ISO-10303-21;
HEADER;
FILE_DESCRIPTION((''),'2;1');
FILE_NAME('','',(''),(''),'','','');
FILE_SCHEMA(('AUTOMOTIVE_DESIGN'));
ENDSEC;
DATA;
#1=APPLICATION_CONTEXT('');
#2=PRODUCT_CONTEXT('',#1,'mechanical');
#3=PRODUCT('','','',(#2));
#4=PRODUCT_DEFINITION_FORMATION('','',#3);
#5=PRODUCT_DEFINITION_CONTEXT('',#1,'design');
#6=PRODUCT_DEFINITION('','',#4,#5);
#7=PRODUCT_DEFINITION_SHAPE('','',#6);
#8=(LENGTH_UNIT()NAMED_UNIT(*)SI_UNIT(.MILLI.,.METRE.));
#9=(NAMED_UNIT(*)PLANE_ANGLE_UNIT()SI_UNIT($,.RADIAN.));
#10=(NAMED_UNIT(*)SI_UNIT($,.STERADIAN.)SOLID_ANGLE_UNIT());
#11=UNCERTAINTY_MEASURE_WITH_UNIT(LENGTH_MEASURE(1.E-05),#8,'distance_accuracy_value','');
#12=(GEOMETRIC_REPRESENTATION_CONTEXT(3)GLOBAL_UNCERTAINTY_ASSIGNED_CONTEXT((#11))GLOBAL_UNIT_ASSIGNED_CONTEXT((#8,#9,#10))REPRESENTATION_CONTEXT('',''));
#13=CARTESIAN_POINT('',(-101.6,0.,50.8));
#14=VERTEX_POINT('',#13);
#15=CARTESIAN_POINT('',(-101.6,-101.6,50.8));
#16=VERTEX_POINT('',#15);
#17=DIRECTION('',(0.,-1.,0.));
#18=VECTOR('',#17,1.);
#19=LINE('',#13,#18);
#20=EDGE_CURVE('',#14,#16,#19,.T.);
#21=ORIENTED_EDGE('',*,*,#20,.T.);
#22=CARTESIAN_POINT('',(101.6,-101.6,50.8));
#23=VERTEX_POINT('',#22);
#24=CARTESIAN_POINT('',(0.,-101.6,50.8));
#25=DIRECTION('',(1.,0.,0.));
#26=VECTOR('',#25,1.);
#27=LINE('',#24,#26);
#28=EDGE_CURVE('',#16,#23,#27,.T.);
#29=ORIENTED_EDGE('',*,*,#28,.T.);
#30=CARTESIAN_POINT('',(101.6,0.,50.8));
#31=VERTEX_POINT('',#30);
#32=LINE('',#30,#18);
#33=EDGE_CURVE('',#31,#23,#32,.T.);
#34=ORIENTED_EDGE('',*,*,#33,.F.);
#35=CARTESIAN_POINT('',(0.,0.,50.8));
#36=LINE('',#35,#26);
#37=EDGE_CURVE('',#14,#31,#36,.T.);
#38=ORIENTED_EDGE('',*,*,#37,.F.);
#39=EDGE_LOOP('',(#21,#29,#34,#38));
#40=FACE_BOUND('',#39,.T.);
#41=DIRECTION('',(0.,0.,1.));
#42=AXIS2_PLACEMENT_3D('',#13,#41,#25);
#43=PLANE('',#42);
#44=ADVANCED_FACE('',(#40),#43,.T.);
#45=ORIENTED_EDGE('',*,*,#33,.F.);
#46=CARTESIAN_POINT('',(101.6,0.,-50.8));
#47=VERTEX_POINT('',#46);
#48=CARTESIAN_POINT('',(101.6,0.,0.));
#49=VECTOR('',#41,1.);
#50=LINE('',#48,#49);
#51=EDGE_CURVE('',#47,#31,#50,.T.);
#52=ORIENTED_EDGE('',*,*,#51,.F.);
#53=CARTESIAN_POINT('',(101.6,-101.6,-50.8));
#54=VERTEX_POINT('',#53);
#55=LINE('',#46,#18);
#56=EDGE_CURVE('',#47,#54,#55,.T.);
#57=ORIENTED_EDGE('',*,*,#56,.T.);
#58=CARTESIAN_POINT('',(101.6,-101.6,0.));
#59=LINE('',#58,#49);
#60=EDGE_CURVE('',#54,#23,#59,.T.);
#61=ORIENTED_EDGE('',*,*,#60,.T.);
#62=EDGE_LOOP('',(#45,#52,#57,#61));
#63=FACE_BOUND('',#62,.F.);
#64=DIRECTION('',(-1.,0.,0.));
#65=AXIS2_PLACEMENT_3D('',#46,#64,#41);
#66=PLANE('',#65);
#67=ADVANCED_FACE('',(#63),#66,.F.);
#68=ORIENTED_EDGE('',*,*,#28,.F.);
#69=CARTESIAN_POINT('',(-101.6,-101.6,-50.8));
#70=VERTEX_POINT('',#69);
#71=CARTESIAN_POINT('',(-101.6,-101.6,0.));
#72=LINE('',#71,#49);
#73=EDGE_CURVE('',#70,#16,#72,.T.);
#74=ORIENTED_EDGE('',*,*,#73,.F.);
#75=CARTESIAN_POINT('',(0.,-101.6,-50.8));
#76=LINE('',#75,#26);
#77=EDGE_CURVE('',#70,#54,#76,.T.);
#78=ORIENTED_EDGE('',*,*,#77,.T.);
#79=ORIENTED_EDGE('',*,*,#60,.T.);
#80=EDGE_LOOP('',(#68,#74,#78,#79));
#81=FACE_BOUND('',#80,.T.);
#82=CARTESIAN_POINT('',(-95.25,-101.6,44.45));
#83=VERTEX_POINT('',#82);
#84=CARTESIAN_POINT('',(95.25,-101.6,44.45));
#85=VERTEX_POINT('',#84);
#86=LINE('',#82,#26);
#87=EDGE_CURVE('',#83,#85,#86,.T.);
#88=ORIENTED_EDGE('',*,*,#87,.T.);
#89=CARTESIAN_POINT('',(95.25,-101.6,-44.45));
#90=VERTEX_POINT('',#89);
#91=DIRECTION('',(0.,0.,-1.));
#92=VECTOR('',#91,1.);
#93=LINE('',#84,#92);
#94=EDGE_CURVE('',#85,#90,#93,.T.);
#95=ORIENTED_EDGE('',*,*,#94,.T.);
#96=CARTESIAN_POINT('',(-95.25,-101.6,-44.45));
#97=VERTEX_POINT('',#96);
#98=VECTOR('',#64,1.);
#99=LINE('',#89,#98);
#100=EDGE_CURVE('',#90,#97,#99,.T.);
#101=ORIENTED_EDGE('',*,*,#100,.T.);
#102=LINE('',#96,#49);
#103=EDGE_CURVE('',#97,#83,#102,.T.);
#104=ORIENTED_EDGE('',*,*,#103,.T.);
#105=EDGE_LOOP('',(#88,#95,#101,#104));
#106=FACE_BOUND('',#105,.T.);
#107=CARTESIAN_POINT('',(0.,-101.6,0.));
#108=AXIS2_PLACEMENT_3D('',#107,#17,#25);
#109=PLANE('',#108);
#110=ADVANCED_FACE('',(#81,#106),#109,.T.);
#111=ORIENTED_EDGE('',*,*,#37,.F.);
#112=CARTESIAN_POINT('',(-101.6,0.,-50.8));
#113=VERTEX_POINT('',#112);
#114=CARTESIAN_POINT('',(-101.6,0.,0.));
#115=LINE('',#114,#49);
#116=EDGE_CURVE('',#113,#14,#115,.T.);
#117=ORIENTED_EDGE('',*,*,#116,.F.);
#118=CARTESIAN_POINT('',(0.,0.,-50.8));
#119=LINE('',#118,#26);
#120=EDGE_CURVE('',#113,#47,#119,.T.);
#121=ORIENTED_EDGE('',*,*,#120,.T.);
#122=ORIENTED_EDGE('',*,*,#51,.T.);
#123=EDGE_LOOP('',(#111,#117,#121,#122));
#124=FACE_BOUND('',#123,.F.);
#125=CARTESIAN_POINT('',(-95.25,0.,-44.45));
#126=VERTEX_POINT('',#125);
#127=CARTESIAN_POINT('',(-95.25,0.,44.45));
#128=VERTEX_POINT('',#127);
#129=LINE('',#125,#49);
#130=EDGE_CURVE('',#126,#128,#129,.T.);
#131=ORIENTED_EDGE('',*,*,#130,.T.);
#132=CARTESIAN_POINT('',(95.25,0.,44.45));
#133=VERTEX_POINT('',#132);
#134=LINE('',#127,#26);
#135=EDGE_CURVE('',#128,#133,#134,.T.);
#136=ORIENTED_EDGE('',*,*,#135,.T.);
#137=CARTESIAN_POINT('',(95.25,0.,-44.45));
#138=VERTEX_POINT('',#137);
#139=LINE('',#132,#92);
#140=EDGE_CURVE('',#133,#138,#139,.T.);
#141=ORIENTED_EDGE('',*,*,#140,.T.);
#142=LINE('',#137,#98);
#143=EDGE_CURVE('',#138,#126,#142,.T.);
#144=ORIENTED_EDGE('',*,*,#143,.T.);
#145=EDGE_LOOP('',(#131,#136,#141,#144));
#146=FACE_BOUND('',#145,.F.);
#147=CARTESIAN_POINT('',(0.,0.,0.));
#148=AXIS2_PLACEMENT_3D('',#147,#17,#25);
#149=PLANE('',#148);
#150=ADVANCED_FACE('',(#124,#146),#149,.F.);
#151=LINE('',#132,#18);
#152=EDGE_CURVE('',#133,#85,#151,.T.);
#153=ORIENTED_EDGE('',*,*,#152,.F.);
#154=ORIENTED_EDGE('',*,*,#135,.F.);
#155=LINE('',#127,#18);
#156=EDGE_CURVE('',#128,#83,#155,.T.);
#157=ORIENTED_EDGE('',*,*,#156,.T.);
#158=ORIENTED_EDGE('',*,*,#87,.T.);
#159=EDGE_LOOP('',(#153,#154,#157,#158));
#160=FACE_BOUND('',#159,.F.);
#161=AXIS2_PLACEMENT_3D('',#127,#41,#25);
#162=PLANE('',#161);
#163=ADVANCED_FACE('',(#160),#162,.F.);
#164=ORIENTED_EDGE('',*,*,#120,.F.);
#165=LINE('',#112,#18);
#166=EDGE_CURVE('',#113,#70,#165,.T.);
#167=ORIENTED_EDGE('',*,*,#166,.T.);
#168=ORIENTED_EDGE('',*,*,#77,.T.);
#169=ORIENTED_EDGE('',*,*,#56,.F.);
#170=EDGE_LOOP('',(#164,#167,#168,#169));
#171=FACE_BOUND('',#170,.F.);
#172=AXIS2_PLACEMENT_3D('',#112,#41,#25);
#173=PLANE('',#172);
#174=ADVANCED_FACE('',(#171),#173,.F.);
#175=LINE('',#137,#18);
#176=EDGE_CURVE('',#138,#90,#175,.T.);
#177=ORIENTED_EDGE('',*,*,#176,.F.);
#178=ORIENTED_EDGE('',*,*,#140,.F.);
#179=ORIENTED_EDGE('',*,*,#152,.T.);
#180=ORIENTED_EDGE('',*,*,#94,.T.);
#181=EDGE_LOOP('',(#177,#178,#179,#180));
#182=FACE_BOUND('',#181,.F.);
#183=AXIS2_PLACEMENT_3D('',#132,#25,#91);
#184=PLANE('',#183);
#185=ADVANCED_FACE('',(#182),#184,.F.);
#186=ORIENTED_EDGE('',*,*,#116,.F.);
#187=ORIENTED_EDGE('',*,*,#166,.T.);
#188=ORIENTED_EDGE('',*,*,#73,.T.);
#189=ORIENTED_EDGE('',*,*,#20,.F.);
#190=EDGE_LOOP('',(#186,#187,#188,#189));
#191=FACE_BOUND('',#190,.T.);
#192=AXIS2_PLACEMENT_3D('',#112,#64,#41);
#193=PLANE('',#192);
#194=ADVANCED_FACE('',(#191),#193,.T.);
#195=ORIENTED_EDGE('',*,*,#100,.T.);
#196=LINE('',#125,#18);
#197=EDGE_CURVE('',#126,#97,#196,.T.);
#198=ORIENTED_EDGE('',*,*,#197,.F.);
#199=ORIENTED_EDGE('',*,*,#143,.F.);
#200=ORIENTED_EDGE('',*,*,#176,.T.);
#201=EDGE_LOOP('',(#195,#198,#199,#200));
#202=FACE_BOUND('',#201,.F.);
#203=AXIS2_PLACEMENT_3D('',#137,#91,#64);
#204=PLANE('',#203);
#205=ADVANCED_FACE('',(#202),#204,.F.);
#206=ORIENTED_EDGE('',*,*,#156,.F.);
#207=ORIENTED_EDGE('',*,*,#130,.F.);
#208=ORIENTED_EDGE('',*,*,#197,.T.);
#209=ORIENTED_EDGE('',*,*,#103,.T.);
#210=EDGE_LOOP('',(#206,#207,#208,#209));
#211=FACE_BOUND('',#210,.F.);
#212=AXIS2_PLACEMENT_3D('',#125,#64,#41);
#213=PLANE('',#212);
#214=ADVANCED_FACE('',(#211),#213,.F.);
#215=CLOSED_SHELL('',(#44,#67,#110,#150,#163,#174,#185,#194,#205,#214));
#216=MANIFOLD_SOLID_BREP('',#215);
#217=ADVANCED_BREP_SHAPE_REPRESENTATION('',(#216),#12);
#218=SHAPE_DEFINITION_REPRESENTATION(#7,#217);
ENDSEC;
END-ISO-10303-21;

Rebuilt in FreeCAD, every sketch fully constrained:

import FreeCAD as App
import Part
import Sketcher

V = App.Vector
Q = App.Units.Quantity

doc = App.newDocument("Part")
body = doc.addObject("PartDesign::Body", "Body")

# Sketch on XZ plane
sketch1 = doc.addObject("Sketcher::SketchObject", "Sketch")
body.addObject(sketch1)
sketch1.AttachmentSupport = (doc.XZ_Plane, [""])
sketch1.MapMode = "FlatFace"
sketch1.addGeometry([
    Part.LineSegment(V(-102, 51, 0), V(-102, -51, 0)),  # 0
    Part.LineSegment(V(-102, -51, 0), V(102, -51, 0)),  # 1
    Part.LineSegment(V(102, -51, 0), V(102, 51, 0)),  # 2
    Part.LineSegment(V(102, 51, 0), V(-102, 51, 0)),  # 3
    Part.LineSegment(V(-95, 44, 0), V(95, 44, 0)),  # 4
    Part.LineSegment(V(95, 44, 0), V(95, -44, 0)),  # 5
    Part.LineSegment(V(95, -44, 0), V(-95, -44, 0)),  # 6
    Part.LineSegment(V(-95, -44, 0), V(-95, 44, 0)),  # 7
], False)
sketch1.addConstraint([
    Sketcher.Constraint("Coincident", 0, 2, 1, 1),
    Sketcher.Constraint("Coincident", 1, 2, 2, 1),
    Sketcher.Constraint("Coincident", 2, 2, 3, 1),
    Sketcher.Constraint("Coincident", 3, 2, 0, 1),
    Sketcher.Constraint("Coincident", 4, 2, 5, 1),
    Sketcher.Constraint("Coincident", 5, 2, 6, 1),
    Sketcher.Constraint("Coincident", 6, 2, 7, 1),
    Sketcher.Constraint("Coincident", 7, 2, 4, 1),
    Sketcher.Constraint("Vertical", 0),
    Sketcher.Constraint("Horizontal", 1),
    Sketcher.Constraint("Vertical", 2),
    Sketcher.Constraint("Horizontal", 3),
    Sketcher.Constraint("Horizontal", 4),
    Sketcher.Constraint("Vertical", 5),
    Sketcher.Constraint("Horizontal", 6),
    Sketcher.Constraint("Vertical", 7),
    Sketcher.Constraint("Symmetric", 0, 2, 2, 2, -1, 1),
    Sketcher.Constraint("Symmetric", 4, 2, 6, 2, -1, 1),
    Sketcher.Constraint("DistanceX", 1, 1, 1, 2, Q("8 in")),
    Sketcher.Constraint("DistanceY", 0, 2, 0, 1, Q("4 in")),
    Sketcher.Constraint("DistanceX", 4, 1, 4, 2, Q("7.5 in")),
    Sketcher.Constraint("DistanceY", 5, 2, 5, 1, Q("3.5 in")),
])
pad1 = doc.addObject("PartDesign::Pad", "Pad")
body.addObject(pad1)
pad1.Profile = sketch1
pad1.Length = Q("4 in")

doc.recompute()
